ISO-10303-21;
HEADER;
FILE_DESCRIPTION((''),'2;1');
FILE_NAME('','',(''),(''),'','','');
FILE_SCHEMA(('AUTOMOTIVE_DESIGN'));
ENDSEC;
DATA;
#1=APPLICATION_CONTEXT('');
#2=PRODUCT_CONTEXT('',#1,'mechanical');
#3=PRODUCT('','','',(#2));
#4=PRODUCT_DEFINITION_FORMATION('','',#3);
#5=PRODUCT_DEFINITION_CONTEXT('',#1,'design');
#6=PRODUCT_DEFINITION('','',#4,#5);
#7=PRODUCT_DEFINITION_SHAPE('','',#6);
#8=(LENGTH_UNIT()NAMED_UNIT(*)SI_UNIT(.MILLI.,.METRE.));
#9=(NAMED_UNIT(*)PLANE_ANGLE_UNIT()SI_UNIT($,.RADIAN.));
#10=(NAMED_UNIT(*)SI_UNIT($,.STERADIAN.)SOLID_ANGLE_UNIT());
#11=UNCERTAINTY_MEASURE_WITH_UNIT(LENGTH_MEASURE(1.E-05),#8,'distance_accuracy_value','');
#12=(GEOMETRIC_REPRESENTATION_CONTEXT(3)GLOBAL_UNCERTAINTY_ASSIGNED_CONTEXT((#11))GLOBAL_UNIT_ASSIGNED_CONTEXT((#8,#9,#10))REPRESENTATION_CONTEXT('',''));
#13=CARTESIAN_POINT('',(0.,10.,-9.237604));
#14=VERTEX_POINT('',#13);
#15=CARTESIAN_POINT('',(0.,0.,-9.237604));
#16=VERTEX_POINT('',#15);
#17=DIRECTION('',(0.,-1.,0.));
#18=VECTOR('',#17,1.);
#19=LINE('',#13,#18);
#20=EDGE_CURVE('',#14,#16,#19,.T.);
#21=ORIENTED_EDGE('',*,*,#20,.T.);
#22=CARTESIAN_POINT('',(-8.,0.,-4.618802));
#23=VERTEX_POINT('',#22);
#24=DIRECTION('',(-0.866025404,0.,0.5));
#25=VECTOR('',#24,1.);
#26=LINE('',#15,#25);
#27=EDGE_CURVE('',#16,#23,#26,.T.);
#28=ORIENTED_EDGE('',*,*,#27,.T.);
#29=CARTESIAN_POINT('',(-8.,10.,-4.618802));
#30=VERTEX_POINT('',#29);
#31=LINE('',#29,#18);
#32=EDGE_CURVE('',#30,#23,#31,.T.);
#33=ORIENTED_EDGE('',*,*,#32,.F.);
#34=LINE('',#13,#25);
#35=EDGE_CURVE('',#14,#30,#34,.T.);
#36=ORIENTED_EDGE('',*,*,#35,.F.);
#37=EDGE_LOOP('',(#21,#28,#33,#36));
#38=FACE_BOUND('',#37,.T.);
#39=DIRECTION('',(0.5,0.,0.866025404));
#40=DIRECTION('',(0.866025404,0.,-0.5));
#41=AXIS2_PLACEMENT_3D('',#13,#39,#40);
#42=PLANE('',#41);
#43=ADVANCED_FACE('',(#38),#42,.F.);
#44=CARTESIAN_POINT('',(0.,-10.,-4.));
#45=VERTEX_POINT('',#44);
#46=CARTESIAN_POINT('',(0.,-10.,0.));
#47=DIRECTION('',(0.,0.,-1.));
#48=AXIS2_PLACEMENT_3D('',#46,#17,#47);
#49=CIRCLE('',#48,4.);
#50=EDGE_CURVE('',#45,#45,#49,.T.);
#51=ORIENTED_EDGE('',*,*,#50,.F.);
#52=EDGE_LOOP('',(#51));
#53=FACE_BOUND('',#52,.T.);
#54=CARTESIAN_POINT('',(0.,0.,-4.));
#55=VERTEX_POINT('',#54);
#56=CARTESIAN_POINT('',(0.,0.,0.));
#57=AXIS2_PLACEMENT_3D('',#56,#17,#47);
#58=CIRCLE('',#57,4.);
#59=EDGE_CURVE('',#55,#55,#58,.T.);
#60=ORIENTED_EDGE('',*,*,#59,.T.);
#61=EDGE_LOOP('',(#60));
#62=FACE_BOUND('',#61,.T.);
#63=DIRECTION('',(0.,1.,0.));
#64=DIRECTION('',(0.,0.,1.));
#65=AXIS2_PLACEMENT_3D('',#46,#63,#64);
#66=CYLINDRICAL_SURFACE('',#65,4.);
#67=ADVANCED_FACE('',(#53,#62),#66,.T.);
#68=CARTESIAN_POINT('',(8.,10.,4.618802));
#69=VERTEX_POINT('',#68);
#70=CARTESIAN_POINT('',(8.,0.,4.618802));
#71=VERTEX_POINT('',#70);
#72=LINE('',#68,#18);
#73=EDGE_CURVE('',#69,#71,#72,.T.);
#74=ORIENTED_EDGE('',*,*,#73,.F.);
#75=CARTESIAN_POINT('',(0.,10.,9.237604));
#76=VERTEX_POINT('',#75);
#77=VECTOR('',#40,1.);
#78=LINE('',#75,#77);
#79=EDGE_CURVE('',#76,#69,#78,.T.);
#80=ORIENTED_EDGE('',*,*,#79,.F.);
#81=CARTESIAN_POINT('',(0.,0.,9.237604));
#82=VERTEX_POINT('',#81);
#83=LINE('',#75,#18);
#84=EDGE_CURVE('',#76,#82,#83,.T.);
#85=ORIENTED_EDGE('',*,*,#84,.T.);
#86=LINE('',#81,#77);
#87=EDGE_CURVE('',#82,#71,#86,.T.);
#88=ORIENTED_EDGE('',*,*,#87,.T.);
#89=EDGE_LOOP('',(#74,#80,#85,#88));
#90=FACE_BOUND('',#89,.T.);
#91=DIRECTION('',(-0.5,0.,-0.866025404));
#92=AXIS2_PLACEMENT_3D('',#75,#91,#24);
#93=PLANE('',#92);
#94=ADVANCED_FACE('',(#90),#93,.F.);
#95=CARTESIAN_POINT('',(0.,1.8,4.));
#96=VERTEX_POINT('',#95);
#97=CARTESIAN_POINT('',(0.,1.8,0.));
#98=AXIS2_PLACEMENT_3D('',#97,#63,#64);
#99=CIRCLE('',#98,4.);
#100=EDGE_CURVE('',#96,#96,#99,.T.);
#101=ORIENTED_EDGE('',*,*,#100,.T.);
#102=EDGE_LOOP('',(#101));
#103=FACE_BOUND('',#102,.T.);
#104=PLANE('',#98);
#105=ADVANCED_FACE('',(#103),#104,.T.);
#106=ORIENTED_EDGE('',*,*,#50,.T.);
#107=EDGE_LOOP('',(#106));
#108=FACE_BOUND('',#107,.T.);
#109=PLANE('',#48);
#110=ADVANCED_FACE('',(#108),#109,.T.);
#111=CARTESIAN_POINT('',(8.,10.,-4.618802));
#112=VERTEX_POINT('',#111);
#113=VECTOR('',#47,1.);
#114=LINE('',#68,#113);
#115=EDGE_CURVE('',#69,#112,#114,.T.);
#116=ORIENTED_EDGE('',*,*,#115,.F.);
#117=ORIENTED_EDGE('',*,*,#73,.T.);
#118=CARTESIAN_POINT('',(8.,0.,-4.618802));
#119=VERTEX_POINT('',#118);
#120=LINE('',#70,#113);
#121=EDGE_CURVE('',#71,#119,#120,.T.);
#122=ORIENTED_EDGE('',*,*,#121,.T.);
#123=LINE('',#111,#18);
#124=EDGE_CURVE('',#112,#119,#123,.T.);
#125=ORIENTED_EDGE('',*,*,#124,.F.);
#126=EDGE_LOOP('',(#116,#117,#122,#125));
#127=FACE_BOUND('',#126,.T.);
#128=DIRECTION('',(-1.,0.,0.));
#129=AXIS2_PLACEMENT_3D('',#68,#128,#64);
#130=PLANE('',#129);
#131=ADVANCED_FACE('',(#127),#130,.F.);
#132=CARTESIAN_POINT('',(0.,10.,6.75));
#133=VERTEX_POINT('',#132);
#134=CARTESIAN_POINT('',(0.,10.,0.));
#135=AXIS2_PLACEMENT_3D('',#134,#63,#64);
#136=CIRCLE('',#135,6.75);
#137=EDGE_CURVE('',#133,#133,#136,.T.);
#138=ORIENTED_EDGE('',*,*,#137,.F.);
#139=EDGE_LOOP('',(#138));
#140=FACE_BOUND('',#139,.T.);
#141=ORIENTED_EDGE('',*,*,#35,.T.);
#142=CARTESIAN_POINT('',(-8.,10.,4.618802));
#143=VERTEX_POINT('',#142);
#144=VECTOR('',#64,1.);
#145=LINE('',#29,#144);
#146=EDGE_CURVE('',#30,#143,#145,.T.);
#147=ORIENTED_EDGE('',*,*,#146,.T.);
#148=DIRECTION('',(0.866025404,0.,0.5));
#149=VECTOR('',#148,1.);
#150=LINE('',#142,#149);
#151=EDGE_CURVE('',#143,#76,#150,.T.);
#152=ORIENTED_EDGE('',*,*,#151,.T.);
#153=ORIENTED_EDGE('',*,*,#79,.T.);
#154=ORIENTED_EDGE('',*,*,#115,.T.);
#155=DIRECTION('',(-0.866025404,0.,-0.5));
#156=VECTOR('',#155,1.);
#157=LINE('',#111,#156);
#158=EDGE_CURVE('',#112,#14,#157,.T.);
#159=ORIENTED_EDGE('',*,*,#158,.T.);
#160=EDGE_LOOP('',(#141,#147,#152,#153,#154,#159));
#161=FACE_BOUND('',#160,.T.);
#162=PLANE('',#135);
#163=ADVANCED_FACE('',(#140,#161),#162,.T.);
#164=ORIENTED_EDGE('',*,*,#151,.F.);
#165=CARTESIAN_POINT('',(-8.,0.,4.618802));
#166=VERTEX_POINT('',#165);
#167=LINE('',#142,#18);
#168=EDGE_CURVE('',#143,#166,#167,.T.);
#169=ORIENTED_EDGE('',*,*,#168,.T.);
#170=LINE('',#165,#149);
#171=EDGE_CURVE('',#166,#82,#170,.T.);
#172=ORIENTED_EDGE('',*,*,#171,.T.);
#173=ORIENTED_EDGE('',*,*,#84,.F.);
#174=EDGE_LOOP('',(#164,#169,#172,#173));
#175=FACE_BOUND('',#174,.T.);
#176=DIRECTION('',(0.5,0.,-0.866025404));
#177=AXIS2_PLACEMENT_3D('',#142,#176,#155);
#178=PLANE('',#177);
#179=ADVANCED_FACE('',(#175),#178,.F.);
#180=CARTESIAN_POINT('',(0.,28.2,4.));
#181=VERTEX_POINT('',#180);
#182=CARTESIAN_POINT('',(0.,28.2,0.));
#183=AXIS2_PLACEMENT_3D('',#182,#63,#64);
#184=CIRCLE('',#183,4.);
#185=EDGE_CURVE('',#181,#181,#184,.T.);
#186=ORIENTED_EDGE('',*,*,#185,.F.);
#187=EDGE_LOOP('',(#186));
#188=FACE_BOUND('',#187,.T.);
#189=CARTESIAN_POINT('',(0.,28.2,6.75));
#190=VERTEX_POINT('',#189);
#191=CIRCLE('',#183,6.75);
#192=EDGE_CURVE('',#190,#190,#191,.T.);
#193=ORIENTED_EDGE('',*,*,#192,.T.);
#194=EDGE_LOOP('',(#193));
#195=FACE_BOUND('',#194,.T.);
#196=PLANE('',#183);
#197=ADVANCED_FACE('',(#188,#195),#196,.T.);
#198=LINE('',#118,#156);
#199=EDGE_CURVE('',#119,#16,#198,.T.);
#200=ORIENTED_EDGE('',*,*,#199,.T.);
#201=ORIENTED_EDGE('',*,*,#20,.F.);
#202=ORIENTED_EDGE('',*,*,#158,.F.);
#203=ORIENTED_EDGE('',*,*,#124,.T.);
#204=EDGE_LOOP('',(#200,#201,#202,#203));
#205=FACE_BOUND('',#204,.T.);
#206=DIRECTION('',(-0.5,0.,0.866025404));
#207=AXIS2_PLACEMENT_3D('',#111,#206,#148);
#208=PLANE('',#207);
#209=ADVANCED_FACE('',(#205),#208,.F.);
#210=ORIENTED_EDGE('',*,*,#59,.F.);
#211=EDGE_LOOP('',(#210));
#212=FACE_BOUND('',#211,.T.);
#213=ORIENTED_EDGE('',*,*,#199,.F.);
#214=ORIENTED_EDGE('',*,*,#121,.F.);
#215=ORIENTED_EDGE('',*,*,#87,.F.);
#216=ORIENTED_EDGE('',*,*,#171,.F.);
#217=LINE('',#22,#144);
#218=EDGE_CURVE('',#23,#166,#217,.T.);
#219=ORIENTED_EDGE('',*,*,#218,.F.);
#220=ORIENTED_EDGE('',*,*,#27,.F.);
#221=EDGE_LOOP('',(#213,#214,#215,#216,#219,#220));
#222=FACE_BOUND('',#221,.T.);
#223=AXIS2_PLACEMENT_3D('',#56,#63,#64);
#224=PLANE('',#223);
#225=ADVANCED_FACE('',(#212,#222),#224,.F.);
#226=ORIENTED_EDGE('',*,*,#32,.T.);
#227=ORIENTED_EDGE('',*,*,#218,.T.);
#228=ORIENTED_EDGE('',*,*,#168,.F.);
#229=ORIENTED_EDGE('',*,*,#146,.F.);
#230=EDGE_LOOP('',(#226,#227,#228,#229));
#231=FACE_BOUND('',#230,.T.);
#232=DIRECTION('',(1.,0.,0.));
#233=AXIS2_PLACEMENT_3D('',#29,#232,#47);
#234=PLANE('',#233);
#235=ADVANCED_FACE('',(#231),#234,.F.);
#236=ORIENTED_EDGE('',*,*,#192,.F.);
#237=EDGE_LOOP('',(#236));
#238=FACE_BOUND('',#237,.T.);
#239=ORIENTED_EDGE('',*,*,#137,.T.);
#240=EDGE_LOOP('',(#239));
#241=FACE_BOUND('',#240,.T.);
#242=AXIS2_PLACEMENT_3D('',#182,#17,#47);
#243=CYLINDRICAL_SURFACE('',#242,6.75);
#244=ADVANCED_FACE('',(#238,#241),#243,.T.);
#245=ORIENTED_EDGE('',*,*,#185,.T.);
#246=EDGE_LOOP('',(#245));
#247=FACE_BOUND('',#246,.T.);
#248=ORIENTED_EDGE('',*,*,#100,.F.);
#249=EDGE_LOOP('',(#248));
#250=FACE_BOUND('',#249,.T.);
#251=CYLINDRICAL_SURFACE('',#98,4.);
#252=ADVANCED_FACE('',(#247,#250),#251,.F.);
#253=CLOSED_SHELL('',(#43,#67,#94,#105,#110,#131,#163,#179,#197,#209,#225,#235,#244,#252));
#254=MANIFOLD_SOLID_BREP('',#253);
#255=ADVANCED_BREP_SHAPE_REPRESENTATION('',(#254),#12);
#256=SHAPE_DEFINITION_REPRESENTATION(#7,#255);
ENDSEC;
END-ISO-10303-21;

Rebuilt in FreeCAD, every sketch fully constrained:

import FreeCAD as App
import Part
import Sketcher
from FreeCAD import Vector
Q = App.Units.Quantity

doc = App.newDocument("Part")
body = doc.addObject("PartDesign::Body", "Body")

sketch1 = body.newObject("Sketcher::SketchObject", "Sketch")
sketch1.AttachmentSupport = (doc.getObject("XZ_Plane"), [""])
sketch1.MapMode = "FlatFace"
sketch1.addGeometry([
    Part.LineSegment(Vector(0, -9, 0), Vector(-8, -5, 0)),
    Part.LineSegment(Vector(-8, -5, 0), Vector(-8, 5, 0)),
    Part.LineSegment(Vector(-8, 5, 0), Vector(0, 9, 0)),
    Part.LineSegment(Vector(0, 9, 0), Vector(8, 5, 0)),
    Part.LineSegment(Vector(8, 5, 0), Vector(8, -5, 0)),
    Part.LineSegment(Vector(8, -5, 0), Vector(0, -9, 0)),
], False)
sketch1.addConstraint([
    Sketcher.Constraint("Coincident", 0, 2, 1, 1),
    Sketcher.Constraint("Coincident", 1, 2, 2, 1),
    Sketcher.Constraint("Coincident", 2, 2, 3, 1),
    Sketcher.Constraint("Coincident", 3, 2, 4, 1),
    Sketcher.Constraint("Coincident", 4, 2, 5, 1),
    Sketcher.Constraint("Coincident", 5, 2, 0, 1),
    Sketcher.Constraint("Vertical", 1),
    Sketcher.Constraint("Vertical", 4),
    Sketcher.Constraint("Symmetric", 0, 2, 3, 2, -1, 1),
    Sketcher.Constraint("Symmetric", 2, 2, 5, 2, -1, 1),
    Sketcher.Constraint("PointOnObject", 2, 2, -2),
    Sketcher.Constraint("Parallel", 2, 5),
    Sketcher.Constraint("Horizontal", 1, 2, 3, 2),
    Sketcher.Constraint("Angle", 0, Q("150 deg")),
    Sketcher.Constraint("DistanceX", 0, 2, -1, 1, Q("8 mm")),
    Sketcher.Constraint("DistanceY", 1, 1, 1, 2, Q("9.237604 mm")),
])
pad1 = body.newObject("PartDesign::Pad", "Pad")
pad1.Profile = sketch1
pad1.Length = 10
pad1.Reversed = True

sketch2 = body.newObject("Sketcher::SketchObject", "Sketch001")
sketch2.AttachmentSupport = (doc.getObject("XZ_Plane"), [""])
sketch2.MapMode = "FlatFace"
sketch2.AttachmentOffset = App.Placement(Vector(0, 0, -10), App.Rotation())
sketch2.addGeometry(Part.Circle(Vector(0, 0, 0), Vector(0, 0, 1), 7), False)
sketch2.addConstraint([
    Sketcher.Constraint("Coincident", 0, 3, -1, 1),
    Sketcher.Constraint("Diameter", 0, Q("13.5 mm")),
])
pad2 = body.newObject("PartDesign::Pad", "Pad001")
pad2.Profile = sketch2
pad2.Length = 18.2
pad2.Reversed = True

sketch3 = body.newObject("Sketcher::SketchObject", "Sketch002")
sketch3.AttachmentSupport = (doc.getObject("XZ_Plane"), [""])
sketch3.MapMode = "FlatFace"
sketch3.addGeometry(Part.Circle(Vector(0, 0, 0), Vector(0, 0, 1), 4), False)
sketch3.addConstraint([
    Sketcher.Constraint("Coincident", 0, 3, -1, 1),
    Sketcher.Constraint("Diameter", 0, Q("8 mm")),
])
pad3 = body.newObject("PartDesign::Pad", "Pad002")
pad3.Profile = sketch3
pad3.Length = 10

sketch4 = body.newObject("Sketcher::SketchObject", "Sketch003")
sketch4.AttachmentSupport = (doc.getObject("XZ_Plane"), [""])
sketch4.MapMode = "FlatFace"
sketch4.AttachmentOffset = App.Placement(Vector(0, 0, -28.2), App.Rotation())
sketch4.addGeometry(Part.Circle(Vector(0, 0, 0), Vector(0, 0, 1), 4), False)
sketch4.addConstraint([
    Sketcher.Constraint("Coincident", 0, 3, -1, 1),
    Sketcher.Constraint("Diameter", 0, Q("8 mm")),
])
pocket1 = body.newObject("PartDesign::Pocket", "Pocket")
pocket1.Profile = sketch4
pocket1.Length = 26.4
pocket1.Reversed = True

doc.recompute()
